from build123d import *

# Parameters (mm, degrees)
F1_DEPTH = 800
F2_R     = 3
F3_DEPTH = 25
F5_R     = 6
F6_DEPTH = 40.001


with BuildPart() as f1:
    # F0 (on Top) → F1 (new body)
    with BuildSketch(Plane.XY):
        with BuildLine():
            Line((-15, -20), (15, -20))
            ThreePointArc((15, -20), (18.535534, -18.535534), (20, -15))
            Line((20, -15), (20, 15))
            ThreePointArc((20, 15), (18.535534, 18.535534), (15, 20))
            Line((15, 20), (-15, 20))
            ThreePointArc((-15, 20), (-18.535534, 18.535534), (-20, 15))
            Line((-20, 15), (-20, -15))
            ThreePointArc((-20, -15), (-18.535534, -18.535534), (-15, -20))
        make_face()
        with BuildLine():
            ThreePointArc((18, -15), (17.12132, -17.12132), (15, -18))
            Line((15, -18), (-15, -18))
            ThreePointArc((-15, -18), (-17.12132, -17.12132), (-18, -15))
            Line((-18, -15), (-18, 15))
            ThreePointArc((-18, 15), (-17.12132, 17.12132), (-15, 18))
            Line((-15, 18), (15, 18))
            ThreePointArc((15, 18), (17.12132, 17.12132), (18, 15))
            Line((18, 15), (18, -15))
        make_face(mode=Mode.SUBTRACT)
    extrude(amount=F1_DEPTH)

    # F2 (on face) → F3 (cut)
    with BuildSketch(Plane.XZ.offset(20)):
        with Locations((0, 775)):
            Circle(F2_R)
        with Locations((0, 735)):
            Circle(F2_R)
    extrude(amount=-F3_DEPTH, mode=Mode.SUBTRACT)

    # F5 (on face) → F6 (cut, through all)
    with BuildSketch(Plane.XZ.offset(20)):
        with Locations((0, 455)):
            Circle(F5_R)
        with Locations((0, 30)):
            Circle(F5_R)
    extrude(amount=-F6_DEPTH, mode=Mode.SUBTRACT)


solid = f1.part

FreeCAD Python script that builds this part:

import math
import FreeCAD as App
import Part
import Sketcher

V = App.Vector
Q = App.Units.Quantity

doc = App.newDocument("Part")
body = doc.addObject("PartDesign::Body", "Body")

# Sketch on XY plane
sketch1 = body.newObject("Sketcher::SketchObject", "Sketch")
sketch1.AttachmentSupport = (doc.getObject("XY_Plane"), [""])
sketch1.MapMode = "FlatFace"
sketch1.addGeometry([
    Part.LineSegment(V(-15, -20, 0), V(15, -20, 0)),  # 0
    Part.ArcOfCircle(Part.Circle(V(15, -15, 0), V(0, 0, 1), 5), math.radians(-90), math.radians(0)),  # 1
    Part.LineSegment(V(20, -15, 0), V(20, 15, 0)),  # 2
    Part.ArcOfCircle(Part.Circle(V(15, 15, 0), V(0, 0, 1), 5), math.radians(0), math.radians(90)),  # 3
    Part.LineSegment(V(15, 20, 0), V(-15, 20, 0)),  # 4
    Part.ArcOfCircle(Part.Circle(V(-15, 15, 0), V(0, 0, 1), 5), math.radians(90), math.radians(180)),  # 5
    Part.LineSegment(V(-20, 15, 0), V(-20, -15, 0)),  # 6
    Part.ArcOfCircle(Part.Circle(V(-15, -15, 0), V(0, 0, 1), 5), math.radians(180), math.radians(270)),  # 7
    Part.LineSegment(V(18, 15, 0), V(18, -15, 0)),  # 8
    Part.ArcOfCircle(Part.Circle(V(15, -15, 0), V(0, 0, 1), 3), math.radians(-90), math.radians(0)),  # 9
    Part.LineSegment(V(15, -18, 0), V(-15, -18, 0)),  # 10
    Part.ArcOfCircle(Part.Circle(V(-15, -15, 0), V(0, 0, 1), 3), math.radians(-180), math.radians(-90)),  # 11
    Part.LineSegment(V(-18, -15, 0), V(-18, 15, 0)),  # 12
    Part.ArcOfCircle(Part.Circle(V(-15, 15, 0), V(0, 0, 1), 3), math.radians(90), math.radians(180)),  # 13
    Part.LineSegment(V(-15, 18, 0), V(15, 18, 0)),  # 14
    Part.ArcOfCircle(Part.Circle(V(15, 15, 0), V(0, 0, 1), 3), math.radians(0), math.radians(90)),  # 15
], False)
sketch1.addConstraint([
    Sketcher.Constraint("Tangent", 0, 2, 1, 1),
    Sketcher.Constraint("Tangent", 1, 2, 2, 1),
    Sketcher.Constraint("Tangent", 2, 2, 3, 1),
    Sketcher.Constraint("Tangent", 3, 2, 4, 1),
    Sketcher.Constraint("Tangent", 4, 2, 5, 1),
    Sketcher.Constraint("Tangent", 5, 2, 6, 1),
    Sketcher.Constraint("Tangent", 6, 2, 7, 1),
    Sketcher.Constraint("Tangent", 7, 2, 0, 1),
    Sketcher.Constraint("Tangent", 8, 2, 9, 2),
    Sketcher.Constraint("Tangent", 9, 1, 10, 1),
    Sketcher.Constraint("Tangent", 10, 2, 11, 2),
    Sketcher.Constraint("Tangent", 11, 1, 12, 1),
    Sketcher.Constraint("Tangent", 12, 2, 13, 2),
    Sketcher.Constraint("Tangent", 13, 1, 14, 1),
    Sketcher.Constraint("Tangent", 14, 2, 15, 2),
    Sketcher.Constraint("Tangent", 15, 1, 8, 1),
    Sketcher.Constraint("Horizontal", 0),
    Sketcher.Constraint("Vertical", 2),
    Sketcher.Constraint("Horizontal", 4),
    Sketcher.Constraint("Vertical", 6),
    Sketcher.Constraint("Vertical", 8),
    Sketcher.Constraint("Horizontal", 10),
    Sketcher.Constraint("Vertical", 12),
    Sketcher.Constraint("Horizontal", 14),
    Sketcher.Constraint("Coincident", 9, 3, 1, 3),
    Sketcher.Constraint("Coincident", 11, 3, 7, 3),
    Sketcher.Constraint("Coincident", 13, 3, 5, 3),
    Sketcher.Constraint("Equal", 1, 3),
    Sketcher.Constraint("Equal", 3, 5),
    Sketcher.Constraint("Equal", 5, 7),
    Sketcher.Constraint("Equal", 13, 15),
    Sketcher.Constraint("Symmetric", 1, 3, 5, 3, -1, 1),
    Sketcher.Constraint("Equal", 14, 2),
    Sketcher.Constraint("Radius", 1, Q("5 mm")),
    Sketcher.Constraint("Radius", 9, Q("3.000001 mm")),
    Sketcher.Constraint("DistanceX", 0, 1, 0, 2, Q("30 mm")),
])
pad1 = body.newObject("PartDesign::Pad", "Pad")
pad1.Profile = sketch1
pad1.Length = 800

# Sketch on XZ plane
sketch2 = body.newObject("Sketcher::SketchObject", "Sketch001")
sketch2.AttachmentSupport = (doc.getObject("XZ_Plane"), [""])
sketch2.MapMode = "FlatFace"
sketch2.AttachmentOffset = App.Placement(V(0, 0, 20), App.Rotation())
sketch2.addGeometry([
    Part.Circle(V(0, 775, 0), V(0, 0, 1), 3),
    Part.Circle(V(0, 735, 0), V(0, 0, 1), 3),
], False)
sketch2.addConstraint([
    Sketcher.Constraint("Equal", 0, 1),
    Sketcher.Constraint("PointOnObject", 0, 3, -2),
    Sketcher.Constraint("PointOnObject", 1, 3, -2),
    Sketcher.Constraint("Diameter", 0, Q("6 mm")),
    Sketcher.Constraint("DistanceY", -1, 1, 0, 3, Q("775 mm")),
    Sketcher.Constraint("DistanceY", -1, 1, 1, 3, Q("735 mm")),
])
pocket1 = body.newObject("PartDesign::Pocket", "Pocket")
pocket1.Profile = sketch2
pocket1.Length = 25

# Sketch on XZ plane
sketch3 = body.newObject("Sketcher::SketchObject", "Sketch002")
sketch3.AttachmentSupport = (doc.getObject("XZ_Plane"), [""])
sketch3.MapMode = "FlatFace"
sketch3.AttachmentOffset = App.Placement(V(0, 0, 20), App.Rotation())
sketch3.addGeometry([
    Part.Circle(V(0, 455, 0), V(0, 0, 1), 6),
    Part.Circle(V(0, 30, 0), V(0, 0, 1), 6),
], False)
sketch3.addConstraint([
    Sketcher.Constraint("Equal", 0, 1),
    Sketcher.Constraint("PointOnObject", 0, 3, -2),
    Sketcher.Constraint("PointOnObject", 1, 3, -2),
    Sketcher.Constraint("Diameter", 0, Q("12 mm")),
    Sketcher.Constraint("DistanceY", -1, 1, 0, 3, Q("455 mm")),
    Sketcher.Constraint("DistanceY", -1, 1, 1, 3, Q("30 mm")),
])
pocket2 = body.newObject("PartDesign::Pocket", "Pocket001")
pocket2.Profile = sketch3
pocket2.Type = "ThroughAll"

doc.recompute()
